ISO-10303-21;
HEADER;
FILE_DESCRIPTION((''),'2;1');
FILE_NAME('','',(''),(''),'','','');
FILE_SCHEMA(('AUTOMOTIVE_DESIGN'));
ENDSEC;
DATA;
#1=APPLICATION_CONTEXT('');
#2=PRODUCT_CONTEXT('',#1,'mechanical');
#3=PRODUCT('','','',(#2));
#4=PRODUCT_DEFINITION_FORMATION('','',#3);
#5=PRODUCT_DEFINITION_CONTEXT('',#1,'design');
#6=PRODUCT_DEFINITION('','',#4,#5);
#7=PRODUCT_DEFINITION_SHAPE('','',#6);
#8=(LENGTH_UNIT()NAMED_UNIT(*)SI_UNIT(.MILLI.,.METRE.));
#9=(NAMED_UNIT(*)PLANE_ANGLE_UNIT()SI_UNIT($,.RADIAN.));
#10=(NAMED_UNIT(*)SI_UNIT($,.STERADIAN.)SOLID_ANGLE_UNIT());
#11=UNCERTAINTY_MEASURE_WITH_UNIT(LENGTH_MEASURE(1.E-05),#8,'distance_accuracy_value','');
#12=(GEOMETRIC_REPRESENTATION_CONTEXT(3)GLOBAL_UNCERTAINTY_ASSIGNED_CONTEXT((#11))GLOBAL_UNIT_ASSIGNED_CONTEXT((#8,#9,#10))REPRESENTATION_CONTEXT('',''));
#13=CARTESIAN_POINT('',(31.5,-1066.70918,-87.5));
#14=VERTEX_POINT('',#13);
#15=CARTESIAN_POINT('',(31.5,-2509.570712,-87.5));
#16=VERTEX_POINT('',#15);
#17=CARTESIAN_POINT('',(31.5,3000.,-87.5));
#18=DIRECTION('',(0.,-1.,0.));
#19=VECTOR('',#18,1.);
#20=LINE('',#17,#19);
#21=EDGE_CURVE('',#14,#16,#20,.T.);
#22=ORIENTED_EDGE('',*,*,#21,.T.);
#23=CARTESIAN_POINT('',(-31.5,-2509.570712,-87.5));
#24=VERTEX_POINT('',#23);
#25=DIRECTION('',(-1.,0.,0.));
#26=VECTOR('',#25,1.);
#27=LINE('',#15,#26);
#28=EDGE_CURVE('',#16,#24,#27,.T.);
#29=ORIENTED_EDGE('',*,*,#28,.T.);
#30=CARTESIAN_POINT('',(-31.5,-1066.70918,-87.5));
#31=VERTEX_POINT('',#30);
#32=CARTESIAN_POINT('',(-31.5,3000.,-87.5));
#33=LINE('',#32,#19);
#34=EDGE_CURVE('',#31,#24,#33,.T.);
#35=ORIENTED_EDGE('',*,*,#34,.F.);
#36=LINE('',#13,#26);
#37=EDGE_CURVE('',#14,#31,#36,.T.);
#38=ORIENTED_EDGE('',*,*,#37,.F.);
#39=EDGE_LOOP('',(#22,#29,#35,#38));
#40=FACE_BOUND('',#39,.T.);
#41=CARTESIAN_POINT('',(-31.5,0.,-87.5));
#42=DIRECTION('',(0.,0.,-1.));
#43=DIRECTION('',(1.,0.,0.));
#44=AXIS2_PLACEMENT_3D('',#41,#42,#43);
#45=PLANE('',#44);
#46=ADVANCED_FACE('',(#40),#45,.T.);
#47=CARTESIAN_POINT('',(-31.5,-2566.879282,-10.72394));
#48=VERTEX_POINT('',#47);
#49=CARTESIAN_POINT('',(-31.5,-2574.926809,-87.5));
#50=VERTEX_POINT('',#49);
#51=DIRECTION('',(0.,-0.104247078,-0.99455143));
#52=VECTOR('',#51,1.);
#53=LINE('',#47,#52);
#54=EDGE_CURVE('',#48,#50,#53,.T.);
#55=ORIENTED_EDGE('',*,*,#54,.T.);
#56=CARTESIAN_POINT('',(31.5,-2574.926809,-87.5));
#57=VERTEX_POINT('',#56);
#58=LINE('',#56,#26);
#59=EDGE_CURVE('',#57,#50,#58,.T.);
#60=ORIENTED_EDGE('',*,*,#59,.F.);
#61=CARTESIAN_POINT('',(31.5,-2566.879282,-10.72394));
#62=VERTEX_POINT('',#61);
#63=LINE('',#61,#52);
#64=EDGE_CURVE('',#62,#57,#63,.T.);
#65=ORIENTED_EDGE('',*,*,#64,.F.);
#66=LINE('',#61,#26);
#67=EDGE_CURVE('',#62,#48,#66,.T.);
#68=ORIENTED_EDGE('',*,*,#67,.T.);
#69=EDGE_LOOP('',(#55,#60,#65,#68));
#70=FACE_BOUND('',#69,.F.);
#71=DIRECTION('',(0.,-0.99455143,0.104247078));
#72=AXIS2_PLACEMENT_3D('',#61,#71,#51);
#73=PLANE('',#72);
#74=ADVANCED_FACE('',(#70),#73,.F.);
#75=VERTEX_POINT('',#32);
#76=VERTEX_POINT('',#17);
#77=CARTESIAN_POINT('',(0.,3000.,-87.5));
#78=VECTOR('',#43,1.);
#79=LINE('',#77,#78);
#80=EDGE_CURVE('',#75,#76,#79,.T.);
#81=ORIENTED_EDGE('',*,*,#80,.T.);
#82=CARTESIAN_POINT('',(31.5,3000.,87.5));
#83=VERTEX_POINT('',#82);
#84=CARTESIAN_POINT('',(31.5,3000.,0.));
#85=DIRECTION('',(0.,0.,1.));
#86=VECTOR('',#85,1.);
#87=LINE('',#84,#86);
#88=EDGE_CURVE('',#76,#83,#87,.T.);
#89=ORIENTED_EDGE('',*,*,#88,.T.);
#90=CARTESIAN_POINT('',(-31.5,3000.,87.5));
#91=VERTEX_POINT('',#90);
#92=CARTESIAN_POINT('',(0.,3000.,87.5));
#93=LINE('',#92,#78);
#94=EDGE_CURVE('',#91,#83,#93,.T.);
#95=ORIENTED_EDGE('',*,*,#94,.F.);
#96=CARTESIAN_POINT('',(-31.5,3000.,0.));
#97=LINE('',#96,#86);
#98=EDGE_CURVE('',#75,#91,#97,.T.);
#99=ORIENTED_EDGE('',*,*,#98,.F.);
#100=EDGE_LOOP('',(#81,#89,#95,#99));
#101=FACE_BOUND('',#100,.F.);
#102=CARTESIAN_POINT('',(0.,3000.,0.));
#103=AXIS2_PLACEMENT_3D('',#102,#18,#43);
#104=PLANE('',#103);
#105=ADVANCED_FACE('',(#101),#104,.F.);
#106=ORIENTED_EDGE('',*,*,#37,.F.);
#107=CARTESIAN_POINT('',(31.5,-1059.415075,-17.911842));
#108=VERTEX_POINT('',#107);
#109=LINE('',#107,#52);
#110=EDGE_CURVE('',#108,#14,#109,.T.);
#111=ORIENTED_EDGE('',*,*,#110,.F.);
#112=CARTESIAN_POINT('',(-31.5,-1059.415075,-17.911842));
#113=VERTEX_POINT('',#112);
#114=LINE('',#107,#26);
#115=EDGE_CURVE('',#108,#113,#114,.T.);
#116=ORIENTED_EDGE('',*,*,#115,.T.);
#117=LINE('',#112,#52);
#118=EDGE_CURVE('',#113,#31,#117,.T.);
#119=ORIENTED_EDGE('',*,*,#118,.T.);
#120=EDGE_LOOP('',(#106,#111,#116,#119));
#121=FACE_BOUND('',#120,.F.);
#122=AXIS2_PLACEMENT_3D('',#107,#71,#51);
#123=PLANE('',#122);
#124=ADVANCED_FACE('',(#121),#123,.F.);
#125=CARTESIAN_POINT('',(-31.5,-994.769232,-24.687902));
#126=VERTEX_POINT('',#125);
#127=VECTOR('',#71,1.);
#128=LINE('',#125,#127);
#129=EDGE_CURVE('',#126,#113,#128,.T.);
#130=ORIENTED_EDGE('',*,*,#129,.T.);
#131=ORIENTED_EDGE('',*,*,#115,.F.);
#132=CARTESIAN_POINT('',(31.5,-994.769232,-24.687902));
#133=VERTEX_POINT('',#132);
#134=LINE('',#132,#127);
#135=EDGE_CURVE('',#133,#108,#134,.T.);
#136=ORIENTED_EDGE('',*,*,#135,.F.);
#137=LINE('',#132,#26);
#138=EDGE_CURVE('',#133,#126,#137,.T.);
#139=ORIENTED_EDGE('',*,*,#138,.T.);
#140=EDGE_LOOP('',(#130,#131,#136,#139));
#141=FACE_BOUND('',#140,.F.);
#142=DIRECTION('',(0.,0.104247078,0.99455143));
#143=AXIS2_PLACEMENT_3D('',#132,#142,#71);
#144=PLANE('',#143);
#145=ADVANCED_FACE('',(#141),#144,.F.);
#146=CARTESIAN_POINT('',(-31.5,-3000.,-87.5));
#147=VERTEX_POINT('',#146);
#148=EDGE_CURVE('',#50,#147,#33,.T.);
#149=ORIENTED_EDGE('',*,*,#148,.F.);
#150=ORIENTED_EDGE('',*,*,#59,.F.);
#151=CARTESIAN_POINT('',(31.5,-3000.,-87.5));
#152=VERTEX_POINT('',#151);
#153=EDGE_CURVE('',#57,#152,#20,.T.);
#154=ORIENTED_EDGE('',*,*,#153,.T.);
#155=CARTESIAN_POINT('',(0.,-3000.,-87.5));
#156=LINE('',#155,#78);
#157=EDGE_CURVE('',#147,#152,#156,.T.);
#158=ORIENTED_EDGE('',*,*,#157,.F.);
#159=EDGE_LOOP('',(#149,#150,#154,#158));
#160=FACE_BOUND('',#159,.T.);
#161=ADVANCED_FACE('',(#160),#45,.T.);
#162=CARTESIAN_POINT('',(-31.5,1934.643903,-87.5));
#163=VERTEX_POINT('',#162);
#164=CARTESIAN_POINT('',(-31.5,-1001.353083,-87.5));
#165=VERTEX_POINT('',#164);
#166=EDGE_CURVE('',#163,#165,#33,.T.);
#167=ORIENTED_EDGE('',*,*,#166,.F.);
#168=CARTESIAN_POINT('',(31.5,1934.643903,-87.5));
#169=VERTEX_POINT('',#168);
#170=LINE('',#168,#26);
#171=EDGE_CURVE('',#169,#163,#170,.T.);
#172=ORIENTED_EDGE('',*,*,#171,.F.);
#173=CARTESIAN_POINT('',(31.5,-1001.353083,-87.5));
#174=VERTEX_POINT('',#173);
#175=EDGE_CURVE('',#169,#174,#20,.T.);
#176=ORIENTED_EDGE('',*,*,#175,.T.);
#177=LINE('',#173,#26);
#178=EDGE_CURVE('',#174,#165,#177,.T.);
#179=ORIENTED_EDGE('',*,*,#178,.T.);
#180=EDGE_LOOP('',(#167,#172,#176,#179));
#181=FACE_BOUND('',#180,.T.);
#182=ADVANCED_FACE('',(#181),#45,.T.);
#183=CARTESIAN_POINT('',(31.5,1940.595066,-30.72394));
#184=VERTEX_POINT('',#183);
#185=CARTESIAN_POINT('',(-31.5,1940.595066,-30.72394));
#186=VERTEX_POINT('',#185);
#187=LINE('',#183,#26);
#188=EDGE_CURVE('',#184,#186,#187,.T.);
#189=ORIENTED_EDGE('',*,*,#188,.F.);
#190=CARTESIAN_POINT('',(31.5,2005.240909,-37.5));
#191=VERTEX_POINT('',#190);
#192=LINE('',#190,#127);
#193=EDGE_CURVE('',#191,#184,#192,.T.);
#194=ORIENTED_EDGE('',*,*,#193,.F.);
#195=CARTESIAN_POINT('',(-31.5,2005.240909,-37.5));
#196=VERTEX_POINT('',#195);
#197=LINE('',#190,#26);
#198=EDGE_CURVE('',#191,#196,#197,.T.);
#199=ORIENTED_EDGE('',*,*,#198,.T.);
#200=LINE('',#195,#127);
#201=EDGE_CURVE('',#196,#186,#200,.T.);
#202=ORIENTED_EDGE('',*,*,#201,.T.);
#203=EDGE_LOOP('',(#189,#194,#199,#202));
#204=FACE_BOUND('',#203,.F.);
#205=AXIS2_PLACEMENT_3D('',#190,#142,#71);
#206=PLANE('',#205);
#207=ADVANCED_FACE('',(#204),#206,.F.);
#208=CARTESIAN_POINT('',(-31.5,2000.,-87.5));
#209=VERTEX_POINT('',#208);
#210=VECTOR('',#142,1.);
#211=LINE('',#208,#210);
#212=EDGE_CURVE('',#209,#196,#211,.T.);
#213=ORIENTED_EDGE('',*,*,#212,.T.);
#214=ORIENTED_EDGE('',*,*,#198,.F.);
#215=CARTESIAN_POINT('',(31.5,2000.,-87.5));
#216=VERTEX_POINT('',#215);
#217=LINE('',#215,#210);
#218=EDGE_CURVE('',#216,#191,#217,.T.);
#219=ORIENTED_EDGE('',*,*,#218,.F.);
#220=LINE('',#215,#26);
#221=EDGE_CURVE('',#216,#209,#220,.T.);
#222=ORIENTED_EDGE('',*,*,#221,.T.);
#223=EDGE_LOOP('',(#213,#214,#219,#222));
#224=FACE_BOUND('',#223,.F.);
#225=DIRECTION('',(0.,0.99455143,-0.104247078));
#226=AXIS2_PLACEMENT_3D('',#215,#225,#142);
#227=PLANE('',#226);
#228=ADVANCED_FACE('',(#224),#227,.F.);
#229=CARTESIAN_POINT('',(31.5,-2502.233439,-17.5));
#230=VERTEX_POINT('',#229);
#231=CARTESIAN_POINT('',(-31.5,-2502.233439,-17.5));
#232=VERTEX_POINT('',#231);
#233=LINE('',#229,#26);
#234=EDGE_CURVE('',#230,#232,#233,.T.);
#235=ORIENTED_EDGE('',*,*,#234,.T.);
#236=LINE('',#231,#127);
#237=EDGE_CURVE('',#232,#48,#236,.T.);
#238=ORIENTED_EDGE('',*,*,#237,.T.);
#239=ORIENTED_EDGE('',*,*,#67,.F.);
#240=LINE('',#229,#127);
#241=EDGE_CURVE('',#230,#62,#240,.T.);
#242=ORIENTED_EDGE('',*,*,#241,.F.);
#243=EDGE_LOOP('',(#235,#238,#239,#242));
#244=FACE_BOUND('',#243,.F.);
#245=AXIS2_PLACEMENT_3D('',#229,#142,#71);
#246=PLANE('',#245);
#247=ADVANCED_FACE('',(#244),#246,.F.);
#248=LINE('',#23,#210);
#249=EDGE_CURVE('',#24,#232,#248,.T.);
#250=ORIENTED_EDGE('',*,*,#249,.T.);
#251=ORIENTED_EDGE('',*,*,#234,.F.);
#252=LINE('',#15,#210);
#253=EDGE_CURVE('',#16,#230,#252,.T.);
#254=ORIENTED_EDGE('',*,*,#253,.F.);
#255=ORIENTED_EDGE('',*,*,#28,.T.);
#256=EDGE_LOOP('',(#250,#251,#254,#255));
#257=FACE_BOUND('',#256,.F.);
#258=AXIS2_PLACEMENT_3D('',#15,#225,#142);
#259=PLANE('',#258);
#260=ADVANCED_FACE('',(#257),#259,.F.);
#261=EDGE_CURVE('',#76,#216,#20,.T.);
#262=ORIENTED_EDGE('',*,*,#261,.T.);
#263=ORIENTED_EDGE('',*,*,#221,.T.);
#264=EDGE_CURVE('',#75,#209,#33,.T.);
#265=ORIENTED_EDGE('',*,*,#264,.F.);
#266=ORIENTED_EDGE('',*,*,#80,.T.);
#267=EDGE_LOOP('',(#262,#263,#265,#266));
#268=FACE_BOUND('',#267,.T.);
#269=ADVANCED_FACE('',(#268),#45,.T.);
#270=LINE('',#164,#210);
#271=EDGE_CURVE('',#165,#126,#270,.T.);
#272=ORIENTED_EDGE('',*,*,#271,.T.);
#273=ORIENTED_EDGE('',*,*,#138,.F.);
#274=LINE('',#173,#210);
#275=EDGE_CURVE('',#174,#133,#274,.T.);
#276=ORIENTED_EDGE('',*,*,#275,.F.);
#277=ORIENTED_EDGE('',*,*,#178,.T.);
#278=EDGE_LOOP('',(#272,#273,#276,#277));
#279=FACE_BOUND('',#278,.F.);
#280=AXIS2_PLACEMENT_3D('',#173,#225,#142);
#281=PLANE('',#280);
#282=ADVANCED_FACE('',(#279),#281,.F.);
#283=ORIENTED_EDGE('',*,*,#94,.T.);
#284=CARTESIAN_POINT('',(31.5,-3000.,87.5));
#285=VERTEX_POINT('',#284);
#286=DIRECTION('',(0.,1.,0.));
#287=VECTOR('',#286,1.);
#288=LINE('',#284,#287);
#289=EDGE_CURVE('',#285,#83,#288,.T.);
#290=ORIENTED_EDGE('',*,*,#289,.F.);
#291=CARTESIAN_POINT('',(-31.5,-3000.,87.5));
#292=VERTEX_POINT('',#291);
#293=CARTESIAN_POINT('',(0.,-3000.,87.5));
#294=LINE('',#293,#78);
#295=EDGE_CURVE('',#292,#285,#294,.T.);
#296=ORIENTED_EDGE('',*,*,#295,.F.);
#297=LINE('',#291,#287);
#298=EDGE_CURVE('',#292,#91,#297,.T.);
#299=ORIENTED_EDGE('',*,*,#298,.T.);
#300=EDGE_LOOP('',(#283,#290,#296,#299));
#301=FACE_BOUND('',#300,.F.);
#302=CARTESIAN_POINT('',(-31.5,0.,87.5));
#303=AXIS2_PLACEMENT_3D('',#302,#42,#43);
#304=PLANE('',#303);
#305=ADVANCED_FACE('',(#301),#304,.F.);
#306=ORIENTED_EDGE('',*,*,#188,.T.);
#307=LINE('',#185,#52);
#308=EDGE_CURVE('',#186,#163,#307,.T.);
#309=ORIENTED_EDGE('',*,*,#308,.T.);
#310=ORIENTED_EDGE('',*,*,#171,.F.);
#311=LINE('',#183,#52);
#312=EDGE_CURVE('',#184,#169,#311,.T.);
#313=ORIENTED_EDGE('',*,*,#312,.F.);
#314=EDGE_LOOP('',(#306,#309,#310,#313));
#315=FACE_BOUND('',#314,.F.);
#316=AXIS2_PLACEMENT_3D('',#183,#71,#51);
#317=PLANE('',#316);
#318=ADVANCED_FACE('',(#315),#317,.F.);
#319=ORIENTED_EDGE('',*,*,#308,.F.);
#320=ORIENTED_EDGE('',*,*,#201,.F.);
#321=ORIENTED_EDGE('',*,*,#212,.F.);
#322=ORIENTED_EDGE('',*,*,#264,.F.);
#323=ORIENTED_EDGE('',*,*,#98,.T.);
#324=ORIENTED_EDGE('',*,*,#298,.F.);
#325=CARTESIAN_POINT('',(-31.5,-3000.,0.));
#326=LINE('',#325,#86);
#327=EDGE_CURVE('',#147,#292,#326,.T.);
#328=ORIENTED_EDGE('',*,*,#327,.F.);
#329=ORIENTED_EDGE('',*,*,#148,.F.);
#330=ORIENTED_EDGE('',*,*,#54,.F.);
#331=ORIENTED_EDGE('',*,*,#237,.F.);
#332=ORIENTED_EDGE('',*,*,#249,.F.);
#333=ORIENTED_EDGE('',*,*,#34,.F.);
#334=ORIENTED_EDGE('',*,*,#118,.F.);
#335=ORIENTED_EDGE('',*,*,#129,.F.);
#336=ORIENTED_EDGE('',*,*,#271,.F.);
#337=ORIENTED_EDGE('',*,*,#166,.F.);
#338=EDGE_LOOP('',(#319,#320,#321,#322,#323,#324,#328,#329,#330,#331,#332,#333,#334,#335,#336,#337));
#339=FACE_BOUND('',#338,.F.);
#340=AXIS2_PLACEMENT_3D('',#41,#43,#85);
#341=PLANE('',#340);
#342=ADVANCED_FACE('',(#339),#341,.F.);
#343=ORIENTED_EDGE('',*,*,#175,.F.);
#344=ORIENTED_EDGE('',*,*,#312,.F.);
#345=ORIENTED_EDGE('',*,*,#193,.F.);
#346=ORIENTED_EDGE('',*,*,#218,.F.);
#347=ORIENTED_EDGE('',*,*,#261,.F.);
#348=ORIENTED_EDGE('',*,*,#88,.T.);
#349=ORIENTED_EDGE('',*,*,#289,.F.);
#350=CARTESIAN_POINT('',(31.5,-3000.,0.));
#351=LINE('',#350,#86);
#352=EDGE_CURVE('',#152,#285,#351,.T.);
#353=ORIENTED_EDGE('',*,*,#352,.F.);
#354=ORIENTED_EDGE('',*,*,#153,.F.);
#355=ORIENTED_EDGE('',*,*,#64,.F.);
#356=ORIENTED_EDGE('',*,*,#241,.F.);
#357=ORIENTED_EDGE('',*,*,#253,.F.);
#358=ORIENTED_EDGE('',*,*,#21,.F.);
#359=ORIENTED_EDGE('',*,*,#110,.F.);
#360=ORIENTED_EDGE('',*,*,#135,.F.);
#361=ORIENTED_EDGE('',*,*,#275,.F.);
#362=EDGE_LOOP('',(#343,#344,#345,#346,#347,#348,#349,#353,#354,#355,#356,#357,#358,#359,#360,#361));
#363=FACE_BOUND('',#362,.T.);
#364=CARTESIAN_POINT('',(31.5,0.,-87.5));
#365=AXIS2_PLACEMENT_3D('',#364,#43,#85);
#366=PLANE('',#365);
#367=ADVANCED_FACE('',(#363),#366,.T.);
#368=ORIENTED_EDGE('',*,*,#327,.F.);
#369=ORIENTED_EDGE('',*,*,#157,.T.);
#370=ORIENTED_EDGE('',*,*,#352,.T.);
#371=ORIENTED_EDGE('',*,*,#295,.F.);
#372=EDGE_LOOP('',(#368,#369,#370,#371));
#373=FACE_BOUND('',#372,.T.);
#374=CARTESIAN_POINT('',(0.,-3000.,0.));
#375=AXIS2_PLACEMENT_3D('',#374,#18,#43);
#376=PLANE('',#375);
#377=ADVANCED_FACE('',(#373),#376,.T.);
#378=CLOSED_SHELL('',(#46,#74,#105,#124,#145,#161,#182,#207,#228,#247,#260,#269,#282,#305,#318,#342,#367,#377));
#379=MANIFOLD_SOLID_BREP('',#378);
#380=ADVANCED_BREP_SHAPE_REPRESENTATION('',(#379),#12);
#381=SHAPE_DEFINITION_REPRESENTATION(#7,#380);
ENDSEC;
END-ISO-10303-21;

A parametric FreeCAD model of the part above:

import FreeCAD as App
import Part
import Sketcher


def add_polygon(sketch, points):
    """Adds a closed chain of lines whose ends are joined by coincident constraints."""
    first, n = sketch.GeometryCount, len(points)
    for a, b in zip(points, points[1:] + points[:1]):
        sketch.addGeometry(Part.LineSegment(App.Vector(*a, 0), App.Vector(*b, 0)), False)
    for i in range(n):
        sketch.addConstraint(Sketcher.Constraint("Coincident", first + i, 2, first + (i + 1) % n, 1))

doc = App.newDocument("Part")
body = doc.addObject("PartDesign::Body", "Body")

# Sketch on XZ plane
sketch1 = doc.addObject("Sketcher::SketchObject", "Sketch")
body.addObject(sketch1)
sketch1.AttachmentSupport = (doc.XZ_Plane, [""])
sketch1.MapMode = "FlatFace"
add_polygon(sketch1, [(-31.5, 87.5), (-31.5, -87.5), (31.5, -87.5), (31.5, 87.5)])  # lines 0-3
sketch1.addConstraint([
    Sketcher.Constraint("Vertical", 0),
    Sketcher.Constraint("Horizontal", 1),
    Sketcher.Constraint("Vertical", 2),
    Sketcher.Constraint("Horizontal", 3),
    Sketcher.Constraint("Symmetric", 0, 2, 2, 2, -1, 1),
    Sketcher.Constraint("DistanceX", 1, 1, 1, 2, 63.0),
    Sketcher.Constraint("DistanceY", 0, 2, 0, 1, 175.0),
])
pad1 = doc.addObject("PartDesign::Pad", "Pad")
body.addObject(pad1)
pad1.Profile = sketch1
pad1.Length = 6000
pad1.Midplane = True

# Sketch on YZ plane
sketch2 = doc.addObject("Sketcher::SketchObject", "Sketch001")
body.addObject(sketch2)
sketch2.AttachmentSupport = (doc.YZ_Plane, [""])
sketch2.MapMode = "FlatFace"
sketch2.AttachmentOffset = App.Placement(App.Vector(0, 0, 31.5), App.Rotation())
add_polygon(sketch2, [(1934.643903, -87.5), (2000, -87.5), (2005.240909, -37.5), (1940.595066, -30.72394)])  # lines 0-3
add_polygon(sketch2, [(-1066.70918, -87.5), (-1001.353083, -87.5), (-994.769232, -24.687902), (-1059.415075, -17.911842)])  # lines 4-7
add_polygon(sketch2, [(-2574.926809, -87.5), (-2509.570712, -87.5), (-2502.233439, -17.5), (-2566.879282, -10.72394)])  # lines 8-11
sketch2.addConstraint([
    Sketcher.Constraint("Horizontal", 0),
    Sketcher.Constraint("Horizontal", 4),
    Sketcher.Constraint("Horizontal", 8),
    Sketcher.Constraint("Perpendicular", 1, 2),
    Sketcher.Constraint("Perpendicular", 2, 3),
    Sketcher.Constraint("Parallel", 3, 5),
    Sketcher.Constraint("Perpendicular", 5, 6),
    Sketcher.Constraint("Perpendicular", 6, 7),
    Sketcher.Constraint("Parallel", 7, 9),
    Sketcher.Constraint("Perpendicular", 9, 10),
    Sketcher.Constraint("Perpendicular", 10, 11),
    Sketcher.Constraint("Horizontal", 3, 2, 4, 2),
    Sketcher.Constraint("Horizontal", 7, 2, 8, 2),
    Sketcher.Constraint("Equal", 0, 4),
    Sketcher.Constraint("Equal", 4, 8),
    Sketcher.Constraint("Distance", 2, 65.0),
    Sketcher.Constraint("DistanceX", -1, 1, 0, 2, 2000.0),
    Sketcher.Constraint("DistanceY", 0, 2, 1, 2, 50.0),
    Sketcher.Constraint("DistanceY", 8, 2, 9, 2, 70.0),
    Sketcher.Constraint("DistanceY", 0, 2, -1, 1, 87.5),
    Sketcher.Constraint("DistanceX", 5, 2, 2, 2, 2935.364299),
    Sketcher.Constraint("DistanceX", 10, 2, 4, 2, 1565.526199),
    Sketcher.Constraint("Distance", 1, 50.273921),
    Sketcher.Constraint("Distance", 5, 63.156209),
])
pocket1 = doc.addObject("PartDesign::Pocket", "Pocket")
body.addObject(pocket1)
pocket1.Profile = sketch2
pocket1.Type = "ThroughAll"

doc.recompute()
